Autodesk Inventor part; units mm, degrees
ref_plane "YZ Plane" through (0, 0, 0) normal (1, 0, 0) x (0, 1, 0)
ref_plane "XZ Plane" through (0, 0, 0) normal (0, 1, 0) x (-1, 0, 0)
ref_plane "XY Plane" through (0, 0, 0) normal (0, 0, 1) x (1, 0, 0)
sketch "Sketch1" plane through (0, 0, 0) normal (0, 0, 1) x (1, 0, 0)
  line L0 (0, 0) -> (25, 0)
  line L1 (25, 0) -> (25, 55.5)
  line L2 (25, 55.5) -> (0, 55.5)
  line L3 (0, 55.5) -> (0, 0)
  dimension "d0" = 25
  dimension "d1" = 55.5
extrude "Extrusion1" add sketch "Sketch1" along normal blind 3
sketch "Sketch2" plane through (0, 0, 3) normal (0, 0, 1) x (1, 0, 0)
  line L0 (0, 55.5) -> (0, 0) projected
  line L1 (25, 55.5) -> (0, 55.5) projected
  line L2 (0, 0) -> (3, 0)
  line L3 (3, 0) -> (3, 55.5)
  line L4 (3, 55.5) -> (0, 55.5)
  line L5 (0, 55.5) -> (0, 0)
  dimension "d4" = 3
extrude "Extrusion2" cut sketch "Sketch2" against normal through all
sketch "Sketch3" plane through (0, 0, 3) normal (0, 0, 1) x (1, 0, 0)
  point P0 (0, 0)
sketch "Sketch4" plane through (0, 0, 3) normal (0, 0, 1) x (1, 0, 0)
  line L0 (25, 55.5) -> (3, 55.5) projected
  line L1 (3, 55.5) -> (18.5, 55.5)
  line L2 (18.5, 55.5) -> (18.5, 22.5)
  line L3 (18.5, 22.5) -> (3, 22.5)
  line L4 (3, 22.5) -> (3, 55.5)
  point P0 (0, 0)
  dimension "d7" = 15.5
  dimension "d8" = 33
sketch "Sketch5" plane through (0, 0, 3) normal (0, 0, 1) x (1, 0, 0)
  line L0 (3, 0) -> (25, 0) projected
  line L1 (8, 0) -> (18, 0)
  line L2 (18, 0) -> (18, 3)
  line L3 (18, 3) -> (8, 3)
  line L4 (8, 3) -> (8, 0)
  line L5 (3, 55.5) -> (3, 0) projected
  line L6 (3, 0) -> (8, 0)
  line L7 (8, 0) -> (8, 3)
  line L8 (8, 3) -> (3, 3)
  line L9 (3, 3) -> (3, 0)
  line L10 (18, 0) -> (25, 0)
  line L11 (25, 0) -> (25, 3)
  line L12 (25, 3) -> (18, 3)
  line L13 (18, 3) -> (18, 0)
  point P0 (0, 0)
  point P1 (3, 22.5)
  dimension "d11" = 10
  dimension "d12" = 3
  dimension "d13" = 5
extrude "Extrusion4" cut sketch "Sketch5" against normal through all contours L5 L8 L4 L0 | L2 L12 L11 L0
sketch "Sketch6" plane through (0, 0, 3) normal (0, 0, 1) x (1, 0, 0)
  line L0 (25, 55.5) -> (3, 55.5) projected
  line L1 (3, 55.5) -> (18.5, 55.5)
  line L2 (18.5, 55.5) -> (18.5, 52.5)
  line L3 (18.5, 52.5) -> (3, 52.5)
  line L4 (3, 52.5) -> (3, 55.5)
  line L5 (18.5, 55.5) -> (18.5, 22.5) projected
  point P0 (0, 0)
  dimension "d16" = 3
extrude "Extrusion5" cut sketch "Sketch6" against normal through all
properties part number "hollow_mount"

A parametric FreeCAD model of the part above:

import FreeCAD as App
import Part
import Sketcher


def add_polygon(sketch, points):
    """Adds a closed chain of lines whose ends are joined by coincident constraints."""
    first, n = sketch.GeometryCount, len(points)
    for a, b in zip(points, points[1:] + points[:1]):
        sketch.addGeometry(Part.LineSegment(App.Vector(*a, 0), App.Vector(*b, 0)), False)
    for i in range(n):
        sketch.addConstraint(Sketcher.Constraint("Coincident", first + i, 2, first + (i + 1) % n, 1))

doc = App.newDocument("Part")
body = doc.addObject("PartDesign::Body", "Body")

sketch1 = body.newObject("Sketcher::SketchObject", "Sketch")
sketch1.AttachmentSupport = (doc.getObject("XY_Plane"), [""])
sketch1.MapMode = "FlatFace"
add_polygon(sketch1, [(0, 56), (0, 0), (25, 0), (25, 56)])
sketch1.addConstraint(Sketcher.Constraint("Vertical", 0))
sketch1.addConstraint(Sketcher.Constraint("Horizontal", 1))
sketch1.addConstraint(Sketcher.Constraint("Vertical", 2))
sketch1.addConstraint(Sketcher.Constraint("Horizontal", 3))
sketch1.addConstraint(Sketcher.Constraint("Coincident", 0, 2, -1, 1))
sketch1.addConstraint(Sketcher.Constraint("DistanceX", 1, 1, 1, 2, 25.0))
sketch1.addConstraint(Sketcher.Constraint("DistanceY", 0, 2, 0, 1, 55.5))
pad1 = body.newObject("PartDesign::Pad", "Pad")
pad1.Profile = sketch1
pad1.Length = 3

sketch2 = body.newObject("Sketcher::SketchObject", "Sketch001")
sketch2.AttachmentSupport = (doc.getObject("XY_Plane"), [""])
sketch2.MapMode = "FlatFace"
sketch2.AttachmentOffset = App.Placement(App.Vector(0, 0, 3), App.Rotation())
add_polygon(sketch2, [(3, 55.5), (0, 55.5), (0, 0), (3, 0)])
sketch2.addConstraint(Sketcher.Constraint("Horizontal", 0))
sketch2.addConstraint(Sketcher.Constraint("Vertical", 1))
sketch2.addConstraint(Sketcher.Constraint("Horizontal", 2))
sketch2.addConstraint(Sketcher.Constraint("Vertical", 3))
sketch2.addConstraint(Sketcher.Constraint("Coincident", 1, 2, -1, 1))
sketch2.addConstraint(Sketcher.Constraint("DistanceX", 0, 2, 0, 1, 3.0))
sketch2.addConstraint(Sketcher.Constraint("DistanceY", 1, 2, 1, 1, 55.5))
pocket1 = body.newObject("PartDesign::Pocket", "Pocket")
pocket1.Profile = sketch2
pocket1.Type = "ThroughAll"

sketch3 = body.newObject("Sketcher::SketchObject", "Sketch002")
sketch3.AttachmentSupport = (doc.getObject("XY_Plane"), [""])
sketch3.MapMode = "FlatFace"
sketch3.AttachmentOffset = App.Placement(App.Vector(0, 0, 3), App.Rotation())
add_polygon(sketch3, [(3, 3), (3, 0), (8, 0), (8, 3)])
add_polygon(sketch3, [(18, 3), (18, 0), (25, 0), (25, 3)])
sketch3.addConstraint(Sketcher.Constraint("Vertical", 0))
sketch3.addConstraint(Sketcher.Constraint("Horizontal", 1))
sketch3.addConstraint(Sketcher.Constraint("Vertical", 2))
sketch3.addConstraint(Sketcher.Constraint("Horizontal", 3))
sketch3.addConstraint(Sketcher.Constraint("Vertical", 4))
sketch3.addConstraint(Sketcher.Constraint("Horizontal", 5))
sketch3.addConstraint(Sketcher.Constraint("Vertical", 6))
sketch3.addConstraint(Sketcher.Constraint("Horizontal", 7))
sketch3.addConstraint(Sketcher.Constraint("PointOnObject", 0, 2, -1))
sketch3.addConstraint(Sketcher.Constraint("PointOnObject", 4, 2, -1))
sketch3.addConstraint(Sketcher.Constraint("Horizontal", 3, 2, 6, 2))
sketch3.addConstraint(Sketcher.Constraint("DistanceX", 1, 1, 1, 2, 5.0))
sketch3.addConstraint(Sketcher.Constraint("DistanceY", 0, 2, 0, 1, 3.0))
sketch3.addConstraint(Sketcher.Constraint("DistanceX", -1, 1, 0, 2, 3.0))
sketch3.addConstraint(Sketcher.Constraint("DistanceX", 1, 2, 4, 2, 10.0))
sketch3.addConstraint(Sketcher.Constraint("DistanceX", 5, 1, 5, 2, 7.0))
pocket2 = body.newObject("PartDesign::Pocket", "Pocket001")
pocket2.Profile = sketch3
pocket2.Type = "ThroughAll"

sketch4 = body.newObject("Sketcher::SketchObject", "Sketch003")
sketch4.AttachmentSupport = (doc.getObject("XY_Plane"), [""])
sketch4.MapMode = "FlatFace"
sketch4.AttachmentOffset = App.Placement(App.Vector(0, 0, 3), App.Rotation())
add_polygon(sketch4, [(18.5, 52.5), (18.5, 55.5), (3, 55.5), (3, 52.5)])
sketch4.addConstraint(Sketcher.Constraint("Vertical", 0))
sketch4.addConstraint(Sketcher.Constraint("Horizontal", 1))
sketch4.addConstraint(Sketcher.Constraint("Vertical", 2))
sketch4.addConstraint(Sketcher.Constraint("Horizontal", 3))
sketch4.addConstraint(Sketcher.Constraint("DistanceY", 0, 1, 0, 2, 3.0))
sketch4.addConstraint(Sketcher.Constraint("DistanceX", -1, 1, 1, 2, 3.0))
sketch4.addConstraint(Sketcher.Constraint("DistanceX", 1, 2, 1, 1, 15.5))
sketch4.addConstraint(Sketcher.Constraint("DistanceY", -1, 1, 0, 2, 55.5))
pocket3 = body.newObject("PartDesign::Pocket", "Pocket002")
pocket3.Profile = sketch4
pocket3.Type = "ThroughAll"

doc.recompute()
